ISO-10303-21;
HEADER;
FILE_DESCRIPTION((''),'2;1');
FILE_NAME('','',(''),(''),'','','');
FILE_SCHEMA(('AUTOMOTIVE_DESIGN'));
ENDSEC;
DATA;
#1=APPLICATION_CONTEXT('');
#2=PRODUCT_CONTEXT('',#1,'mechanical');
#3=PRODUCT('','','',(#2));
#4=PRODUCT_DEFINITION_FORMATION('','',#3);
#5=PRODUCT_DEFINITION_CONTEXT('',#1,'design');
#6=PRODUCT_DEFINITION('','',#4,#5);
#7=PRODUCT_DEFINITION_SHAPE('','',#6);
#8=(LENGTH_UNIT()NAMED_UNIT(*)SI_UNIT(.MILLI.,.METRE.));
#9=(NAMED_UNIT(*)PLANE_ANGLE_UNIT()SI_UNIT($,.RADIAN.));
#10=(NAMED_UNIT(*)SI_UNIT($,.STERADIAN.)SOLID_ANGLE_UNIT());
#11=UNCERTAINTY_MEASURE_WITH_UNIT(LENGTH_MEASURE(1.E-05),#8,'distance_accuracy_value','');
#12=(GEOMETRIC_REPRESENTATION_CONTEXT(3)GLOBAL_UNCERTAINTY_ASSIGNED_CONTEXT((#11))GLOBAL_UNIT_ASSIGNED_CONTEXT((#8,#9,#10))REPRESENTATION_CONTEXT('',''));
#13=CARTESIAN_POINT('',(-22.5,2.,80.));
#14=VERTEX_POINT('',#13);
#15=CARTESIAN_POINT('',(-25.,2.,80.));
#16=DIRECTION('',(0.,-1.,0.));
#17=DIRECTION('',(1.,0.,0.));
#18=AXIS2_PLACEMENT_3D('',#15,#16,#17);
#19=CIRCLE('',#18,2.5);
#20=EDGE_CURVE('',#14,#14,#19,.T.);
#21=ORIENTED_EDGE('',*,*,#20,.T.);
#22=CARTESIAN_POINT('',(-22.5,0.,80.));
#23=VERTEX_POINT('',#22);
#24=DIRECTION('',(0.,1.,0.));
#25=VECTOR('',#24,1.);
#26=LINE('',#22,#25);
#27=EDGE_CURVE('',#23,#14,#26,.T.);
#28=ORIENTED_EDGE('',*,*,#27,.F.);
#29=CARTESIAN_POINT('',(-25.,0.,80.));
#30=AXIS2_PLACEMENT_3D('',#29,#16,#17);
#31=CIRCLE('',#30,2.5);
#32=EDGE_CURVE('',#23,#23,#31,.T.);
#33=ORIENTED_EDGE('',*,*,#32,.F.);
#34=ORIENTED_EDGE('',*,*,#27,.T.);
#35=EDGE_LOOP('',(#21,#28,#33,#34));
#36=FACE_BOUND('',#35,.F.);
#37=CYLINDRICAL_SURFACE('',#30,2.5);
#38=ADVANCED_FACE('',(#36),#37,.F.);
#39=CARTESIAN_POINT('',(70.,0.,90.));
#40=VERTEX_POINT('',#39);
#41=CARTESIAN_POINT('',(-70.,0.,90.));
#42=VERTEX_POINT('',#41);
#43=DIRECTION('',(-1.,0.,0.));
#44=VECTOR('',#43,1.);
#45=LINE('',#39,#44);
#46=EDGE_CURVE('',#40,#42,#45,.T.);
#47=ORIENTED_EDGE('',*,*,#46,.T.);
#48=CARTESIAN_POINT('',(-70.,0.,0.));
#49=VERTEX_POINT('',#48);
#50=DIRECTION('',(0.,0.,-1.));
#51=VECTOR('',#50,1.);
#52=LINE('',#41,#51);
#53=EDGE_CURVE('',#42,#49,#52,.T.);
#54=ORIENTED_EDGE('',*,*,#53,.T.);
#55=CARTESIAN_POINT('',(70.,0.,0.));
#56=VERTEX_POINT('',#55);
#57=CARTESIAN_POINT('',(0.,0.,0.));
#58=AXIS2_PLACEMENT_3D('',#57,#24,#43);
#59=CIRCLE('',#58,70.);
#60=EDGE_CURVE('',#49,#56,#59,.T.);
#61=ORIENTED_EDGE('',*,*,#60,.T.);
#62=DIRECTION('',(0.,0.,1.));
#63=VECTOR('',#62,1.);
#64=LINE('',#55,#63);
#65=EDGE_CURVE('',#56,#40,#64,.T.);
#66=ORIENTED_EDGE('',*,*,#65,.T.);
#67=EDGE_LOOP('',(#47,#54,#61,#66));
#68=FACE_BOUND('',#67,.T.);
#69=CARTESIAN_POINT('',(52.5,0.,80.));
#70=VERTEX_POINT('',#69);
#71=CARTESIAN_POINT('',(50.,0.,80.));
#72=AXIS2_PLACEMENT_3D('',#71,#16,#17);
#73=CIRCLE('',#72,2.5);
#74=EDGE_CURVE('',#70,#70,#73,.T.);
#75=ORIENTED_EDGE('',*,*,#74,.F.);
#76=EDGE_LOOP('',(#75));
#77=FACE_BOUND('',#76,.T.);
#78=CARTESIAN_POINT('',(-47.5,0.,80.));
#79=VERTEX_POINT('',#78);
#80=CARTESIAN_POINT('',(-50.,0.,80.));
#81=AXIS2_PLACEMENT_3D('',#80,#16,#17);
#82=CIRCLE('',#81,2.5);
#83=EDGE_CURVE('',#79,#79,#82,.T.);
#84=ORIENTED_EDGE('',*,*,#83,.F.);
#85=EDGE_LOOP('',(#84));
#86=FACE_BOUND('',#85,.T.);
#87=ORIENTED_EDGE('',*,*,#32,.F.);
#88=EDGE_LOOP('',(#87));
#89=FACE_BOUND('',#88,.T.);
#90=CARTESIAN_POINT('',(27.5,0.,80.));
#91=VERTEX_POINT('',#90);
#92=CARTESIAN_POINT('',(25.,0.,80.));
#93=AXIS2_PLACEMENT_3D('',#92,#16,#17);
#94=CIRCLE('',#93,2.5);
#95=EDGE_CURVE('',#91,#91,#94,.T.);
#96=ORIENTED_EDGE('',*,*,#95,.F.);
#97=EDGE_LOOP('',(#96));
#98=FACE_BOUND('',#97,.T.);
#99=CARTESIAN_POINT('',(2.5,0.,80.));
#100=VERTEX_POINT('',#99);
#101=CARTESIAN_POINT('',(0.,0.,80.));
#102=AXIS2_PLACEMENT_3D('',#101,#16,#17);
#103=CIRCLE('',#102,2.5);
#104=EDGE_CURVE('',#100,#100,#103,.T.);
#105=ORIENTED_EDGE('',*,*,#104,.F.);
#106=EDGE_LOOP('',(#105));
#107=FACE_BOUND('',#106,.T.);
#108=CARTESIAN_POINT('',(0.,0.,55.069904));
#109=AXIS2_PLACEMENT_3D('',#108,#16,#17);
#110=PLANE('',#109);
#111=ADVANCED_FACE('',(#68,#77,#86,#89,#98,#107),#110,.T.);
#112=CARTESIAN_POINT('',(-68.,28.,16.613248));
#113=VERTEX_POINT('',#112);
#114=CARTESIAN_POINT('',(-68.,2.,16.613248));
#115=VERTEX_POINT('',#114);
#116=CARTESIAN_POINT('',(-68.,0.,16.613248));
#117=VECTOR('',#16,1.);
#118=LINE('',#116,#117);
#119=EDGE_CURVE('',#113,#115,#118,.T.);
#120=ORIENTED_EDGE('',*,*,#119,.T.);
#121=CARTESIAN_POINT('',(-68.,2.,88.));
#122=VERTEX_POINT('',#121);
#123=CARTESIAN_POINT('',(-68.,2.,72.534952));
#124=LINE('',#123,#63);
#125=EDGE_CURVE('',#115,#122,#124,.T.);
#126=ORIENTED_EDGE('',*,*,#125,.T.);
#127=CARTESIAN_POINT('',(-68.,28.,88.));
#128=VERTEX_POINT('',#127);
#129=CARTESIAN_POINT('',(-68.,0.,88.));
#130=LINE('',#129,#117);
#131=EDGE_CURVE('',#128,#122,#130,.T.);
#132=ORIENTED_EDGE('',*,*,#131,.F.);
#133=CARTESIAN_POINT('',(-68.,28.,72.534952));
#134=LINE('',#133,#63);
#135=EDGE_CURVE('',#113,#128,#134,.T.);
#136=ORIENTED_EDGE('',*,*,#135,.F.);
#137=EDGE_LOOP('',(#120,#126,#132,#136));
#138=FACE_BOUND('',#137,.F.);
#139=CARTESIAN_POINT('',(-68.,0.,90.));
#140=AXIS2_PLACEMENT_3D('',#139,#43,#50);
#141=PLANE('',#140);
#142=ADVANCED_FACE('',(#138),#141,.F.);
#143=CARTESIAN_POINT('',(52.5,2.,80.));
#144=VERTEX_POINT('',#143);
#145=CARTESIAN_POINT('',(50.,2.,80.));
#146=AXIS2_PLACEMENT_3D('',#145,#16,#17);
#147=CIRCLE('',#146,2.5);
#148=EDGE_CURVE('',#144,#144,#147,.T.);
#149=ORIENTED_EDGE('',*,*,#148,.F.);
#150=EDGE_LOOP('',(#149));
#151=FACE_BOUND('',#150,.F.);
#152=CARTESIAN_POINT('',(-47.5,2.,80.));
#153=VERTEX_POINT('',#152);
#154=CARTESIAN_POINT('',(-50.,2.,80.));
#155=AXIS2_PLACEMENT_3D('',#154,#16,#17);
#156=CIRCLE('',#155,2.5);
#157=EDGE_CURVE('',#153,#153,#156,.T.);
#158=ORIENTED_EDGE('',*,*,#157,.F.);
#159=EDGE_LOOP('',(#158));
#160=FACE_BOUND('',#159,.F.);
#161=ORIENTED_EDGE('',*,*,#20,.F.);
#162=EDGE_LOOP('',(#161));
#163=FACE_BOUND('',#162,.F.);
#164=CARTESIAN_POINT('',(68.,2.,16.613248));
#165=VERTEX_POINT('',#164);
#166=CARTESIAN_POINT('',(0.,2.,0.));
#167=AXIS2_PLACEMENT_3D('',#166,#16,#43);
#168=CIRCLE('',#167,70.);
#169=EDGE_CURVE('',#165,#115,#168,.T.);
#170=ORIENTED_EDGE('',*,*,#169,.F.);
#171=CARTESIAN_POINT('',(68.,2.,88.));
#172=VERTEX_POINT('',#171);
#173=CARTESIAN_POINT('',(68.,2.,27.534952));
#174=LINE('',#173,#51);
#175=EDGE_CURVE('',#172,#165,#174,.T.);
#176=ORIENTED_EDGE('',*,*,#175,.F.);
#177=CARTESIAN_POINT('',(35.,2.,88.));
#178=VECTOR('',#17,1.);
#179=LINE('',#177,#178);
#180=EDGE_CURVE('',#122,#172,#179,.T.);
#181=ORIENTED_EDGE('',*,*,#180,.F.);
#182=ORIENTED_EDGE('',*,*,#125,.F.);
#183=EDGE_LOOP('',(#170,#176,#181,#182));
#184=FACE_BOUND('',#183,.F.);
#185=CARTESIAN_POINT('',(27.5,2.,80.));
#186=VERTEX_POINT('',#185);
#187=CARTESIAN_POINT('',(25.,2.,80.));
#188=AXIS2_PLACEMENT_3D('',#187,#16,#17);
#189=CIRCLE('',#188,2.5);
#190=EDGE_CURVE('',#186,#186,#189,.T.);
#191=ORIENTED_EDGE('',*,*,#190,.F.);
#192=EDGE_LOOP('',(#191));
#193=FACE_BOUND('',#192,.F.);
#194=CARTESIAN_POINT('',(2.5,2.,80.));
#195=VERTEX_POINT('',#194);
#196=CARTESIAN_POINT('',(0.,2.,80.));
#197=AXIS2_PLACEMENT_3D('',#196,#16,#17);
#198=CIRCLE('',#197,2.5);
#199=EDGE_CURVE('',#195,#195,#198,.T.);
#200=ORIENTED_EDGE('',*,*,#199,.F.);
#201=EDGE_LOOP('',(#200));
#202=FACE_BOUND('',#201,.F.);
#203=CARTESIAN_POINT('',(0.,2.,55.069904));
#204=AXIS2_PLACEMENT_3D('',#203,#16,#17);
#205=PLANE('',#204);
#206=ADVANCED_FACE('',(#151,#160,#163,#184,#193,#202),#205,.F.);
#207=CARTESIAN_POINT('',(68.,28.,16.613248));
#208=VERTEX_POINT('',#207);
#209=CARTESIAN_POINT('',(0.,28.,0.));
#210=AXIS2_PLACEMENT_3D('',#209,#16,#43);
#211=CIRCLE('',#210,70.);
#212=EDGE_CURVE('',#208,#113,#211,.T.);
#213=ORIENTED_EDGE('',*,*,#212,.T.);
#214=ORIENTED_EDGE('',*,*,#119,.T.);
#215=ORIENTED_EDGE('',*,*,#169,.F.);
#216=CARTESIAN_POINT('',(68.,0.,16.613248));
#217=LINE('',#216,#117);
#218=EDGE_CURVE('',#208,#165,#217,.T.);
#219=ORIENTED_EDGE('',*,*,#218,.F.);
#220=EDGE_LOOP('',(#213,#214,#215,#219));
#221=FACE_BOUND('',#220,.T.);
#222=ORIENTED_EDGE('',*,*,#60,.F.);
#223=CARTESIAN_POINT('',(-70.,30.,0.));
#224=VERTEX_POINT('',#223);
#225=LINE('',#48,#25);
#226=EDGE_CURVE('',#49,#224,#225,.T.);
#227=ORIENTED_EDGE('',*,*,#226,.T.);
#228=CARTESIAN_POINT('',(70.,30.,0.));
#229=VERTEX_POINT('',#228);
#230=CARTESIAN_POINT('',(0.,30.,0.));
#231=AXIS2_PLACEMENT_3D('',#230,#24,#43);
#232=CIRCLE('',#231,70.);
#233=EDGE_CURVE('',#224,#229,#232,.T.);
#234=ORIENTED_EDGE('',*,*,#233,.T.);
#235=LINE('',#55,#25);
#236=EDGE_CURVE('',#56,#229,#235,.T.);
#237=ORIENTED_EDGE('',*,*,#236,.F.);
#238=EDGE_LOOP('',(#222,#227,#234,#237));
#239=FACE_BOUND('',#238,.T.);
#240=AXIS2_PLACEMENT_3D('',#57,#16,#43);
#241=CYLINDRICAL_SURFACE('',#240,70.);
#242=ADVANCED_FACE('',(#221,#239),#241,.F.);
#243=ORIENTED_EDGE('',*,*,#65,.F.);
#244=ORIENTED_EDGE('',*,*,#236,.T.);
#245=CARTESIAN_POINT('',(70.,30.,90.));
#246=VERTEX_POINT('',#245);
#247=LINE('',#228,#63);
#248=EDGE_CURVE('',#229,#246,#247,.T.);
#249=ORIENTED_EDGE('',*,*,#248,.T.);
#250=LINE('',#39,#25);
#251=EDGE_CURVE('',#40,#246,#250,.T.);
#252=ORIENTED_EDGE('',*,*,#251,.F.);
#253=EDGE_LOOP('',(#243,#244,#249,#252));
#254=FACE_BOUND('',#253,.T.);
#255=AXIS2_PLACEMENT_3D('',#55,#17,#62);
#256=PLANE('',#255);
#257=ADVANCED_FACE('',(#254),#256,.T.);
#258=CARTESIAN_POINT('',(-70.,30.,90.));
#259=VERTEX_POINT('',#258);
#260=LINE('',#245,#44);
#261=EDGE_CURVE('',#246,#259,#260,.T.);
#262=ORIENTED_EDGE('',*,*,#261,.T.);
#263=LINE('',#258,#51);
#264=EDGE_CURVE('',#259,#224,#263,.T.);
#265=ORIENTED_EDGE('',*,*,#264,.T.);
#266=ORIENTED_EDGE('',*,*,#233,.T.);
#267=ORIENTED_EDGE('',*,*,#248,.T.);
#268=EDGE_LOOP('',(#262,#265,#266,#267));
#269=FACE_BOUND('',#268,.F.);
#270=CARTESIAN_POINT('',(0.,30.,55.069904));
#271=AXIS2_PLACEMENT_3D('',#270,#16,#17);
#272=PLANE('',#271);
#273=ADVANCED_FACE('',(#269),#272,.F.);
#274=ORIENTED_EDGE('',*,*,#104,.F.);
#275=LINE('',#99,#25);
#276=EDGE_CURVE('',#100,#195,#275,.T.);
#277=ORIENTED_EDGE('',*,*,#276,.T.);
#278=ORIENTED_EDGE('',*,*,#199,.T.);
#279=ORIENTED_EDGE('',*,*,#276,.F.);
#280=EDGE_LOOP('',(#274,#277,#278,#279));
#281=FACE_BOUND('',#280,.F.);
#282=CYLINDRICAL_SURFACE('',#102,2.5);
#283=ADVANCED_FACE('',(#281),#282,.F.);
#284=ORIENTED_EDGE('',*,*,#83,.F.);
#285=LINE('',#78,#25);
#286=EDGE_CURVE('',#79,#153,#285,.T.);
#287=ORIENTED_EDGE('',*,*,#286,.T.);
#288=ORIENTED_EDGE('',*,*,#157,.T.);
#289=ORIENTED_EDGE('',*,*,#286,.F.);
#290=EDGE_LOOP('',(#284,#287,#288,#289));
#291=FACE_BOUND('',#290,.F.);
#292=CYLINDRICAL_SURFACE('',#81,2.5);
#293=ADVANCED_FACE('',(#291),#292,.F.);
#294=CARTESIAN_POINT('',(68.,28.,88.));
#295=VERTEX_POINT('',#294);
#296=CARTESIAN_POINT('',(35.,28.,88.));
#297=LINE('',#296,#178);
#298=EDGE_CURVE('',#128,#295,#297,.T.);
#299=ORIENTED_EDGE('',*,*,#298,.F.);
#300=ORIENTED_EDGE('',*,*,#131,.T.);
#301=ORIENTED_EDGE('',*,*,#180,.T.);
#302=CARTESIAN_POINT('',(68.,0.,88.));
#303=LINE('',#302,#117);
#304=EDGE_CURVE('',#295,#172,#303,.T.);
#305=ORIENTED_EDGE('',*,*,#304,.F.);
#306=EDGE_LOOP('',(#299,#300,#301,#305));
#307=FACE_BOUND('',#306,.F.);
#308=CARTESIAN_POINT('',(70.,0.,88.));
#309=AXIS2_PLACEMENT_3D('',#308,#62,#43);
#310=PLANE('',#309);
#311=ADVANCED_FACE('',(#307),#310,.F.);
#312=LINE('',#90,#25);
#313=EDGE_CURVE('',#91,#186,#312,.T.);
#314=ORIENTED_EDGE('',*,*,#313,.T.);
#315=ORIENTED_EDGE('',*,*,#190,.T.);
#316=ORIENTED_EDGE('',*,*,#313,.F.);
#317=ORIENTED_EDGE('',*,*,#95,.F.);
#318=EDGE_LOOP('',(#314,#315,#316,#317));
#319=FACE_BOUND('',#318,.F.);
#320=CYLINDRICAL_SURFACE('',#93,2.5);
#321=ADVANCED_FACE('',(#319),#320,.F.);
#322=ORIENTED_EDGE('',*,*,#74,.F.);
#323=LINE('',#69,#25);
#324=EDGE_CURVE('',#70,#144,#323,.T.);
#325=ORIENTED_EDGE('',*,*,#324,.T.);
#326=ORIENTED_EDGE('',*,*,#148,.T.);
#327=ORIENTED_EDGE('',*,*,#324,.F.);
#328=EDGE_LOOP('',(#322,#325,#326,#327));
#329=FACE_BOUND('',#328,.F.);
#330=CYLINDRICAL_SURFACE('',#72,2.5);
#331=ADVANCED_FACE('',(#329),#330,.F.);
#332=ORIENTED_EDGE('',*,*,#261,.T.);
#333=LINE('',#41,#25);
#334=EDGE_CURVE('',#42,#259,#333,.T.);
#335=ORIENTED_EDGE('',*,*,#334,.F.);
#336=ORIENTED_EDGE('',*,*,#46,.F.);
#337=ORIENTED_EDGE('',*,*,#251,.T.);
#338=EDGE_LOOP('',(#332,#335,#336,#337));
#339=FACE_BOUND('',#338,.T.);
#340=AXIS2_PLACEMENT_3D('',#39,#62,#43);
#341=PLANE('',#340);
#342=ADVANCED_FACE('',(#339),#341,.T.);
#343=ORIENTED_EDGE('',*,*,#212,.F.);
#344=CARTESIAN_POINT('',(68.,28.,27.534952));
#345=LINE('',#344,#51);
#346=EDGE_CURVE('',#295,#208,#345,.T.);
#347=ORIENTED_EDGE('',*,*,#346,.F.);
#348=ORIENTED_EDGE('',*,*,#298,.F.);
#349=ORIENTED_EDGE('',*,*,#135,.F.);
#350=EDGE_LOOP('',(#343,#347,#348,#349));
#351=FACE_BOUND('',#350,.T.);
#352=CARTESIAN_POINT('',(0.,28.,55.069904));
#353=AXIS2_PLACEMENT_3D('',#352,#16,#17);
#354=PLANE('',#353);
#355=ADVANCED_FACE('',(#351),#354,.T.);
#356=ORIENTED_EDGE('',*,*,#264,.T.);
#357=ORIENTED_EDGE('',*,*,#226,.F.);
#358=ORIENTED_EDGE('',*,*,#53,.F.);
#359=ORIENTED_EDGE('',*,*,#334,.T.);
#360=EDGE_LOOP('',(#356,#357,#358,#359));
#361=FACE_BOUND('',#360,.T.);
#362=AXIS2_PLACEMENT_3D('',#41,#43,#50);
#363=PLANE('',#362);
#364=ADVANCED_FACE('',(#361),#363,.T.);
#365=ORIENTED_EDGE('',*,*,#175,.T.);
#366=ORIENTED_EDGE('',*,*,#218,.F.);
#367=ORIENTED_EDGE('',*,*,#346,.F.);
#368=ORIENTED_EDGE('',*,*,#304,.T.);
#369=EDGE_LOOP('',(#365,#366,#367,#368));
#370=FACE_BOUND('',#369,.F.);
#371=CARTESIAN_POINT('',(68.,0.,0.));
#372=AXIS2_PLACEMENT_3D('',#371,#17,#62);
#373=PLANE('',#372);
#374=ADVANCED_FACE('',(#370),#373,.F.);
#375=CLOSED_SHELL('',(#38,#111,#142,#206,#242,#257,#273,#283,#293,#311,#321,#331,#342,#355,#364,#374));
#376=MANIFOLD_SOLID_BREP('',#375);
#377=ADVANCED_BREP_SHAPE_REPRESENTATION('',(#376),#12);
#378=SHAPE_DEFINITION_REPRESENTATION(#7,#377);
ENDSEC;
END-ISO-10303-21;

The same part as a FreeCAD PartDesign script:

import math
import FreeCAD as App
import Part
import Sketcher

V = App.Vector


def faces_at(feature, points):
    """Names of the faces that lie closest to the given points."""
    faces = feature.Shape.Faces
    near = lambda p: min(range(len(faces)), key=lambda i: faces[i].distToShape(Part.Vertex(*p))[0])
    return sorted({f"Face{near(p) + 1}" for p in points})

doc = App.newDocument("Part")
params = doc.addObject("Spreadsheet::Sheet", "Params")
for row, (alias, value) in enumerate([
    ("sketch1_radius", "70 mm"),
    ("sketch1_height", "90 mm"),
    ("pad1_length", "30 mm"),
    ("thickness_wall", "2 mm"),
    ("sketch2_diameter", "5 mm"),
    ("pocket1_length", "5 mm"),
], start=1):
    params.set(f"A{row}", alias)
    params.set(f"B{row}", "=" + value)
    params.setAlias(f"B{row}", alias)

body = doc.addObject("PartDesign::Body", "Body")

# Sketch on XZ plane
sketch1 = doc.addObject("Sketcher::SketchObject", "Sketch")
body.addObject(sketch1)
sketch1.AttachmentSupport = (doc.XZ_Plane, [""])
sketch1.MapMode = "FlatFace"
sketch1.addGeometry([
    Part.ArcOfCircle(Part.Circle(V(0, 0, 0), V(0, 0, 1), 70), math.radians(0), math.radians(180)),
    Part.LineSegment(V(70, 0, 0), V(70, 90, 0)),
    Part.LineSegment(V(70, 90, 0), V(-70, 90, 0)),
    Part.LineSegment(V(-70, 90, 0), V(-70, 0, 0)),
], False)
sketch1.addConstraint([
    Sketcher.Constraint("Tangent", 0, 1, 1, 1),
    Sketcher.Constraint("Coincident", 1, 2, 2, 1),
    Sketcher.Constraint("Coincident", 2, 2, 3, 1),
    Sketcher.Constraint("Tangent", 3, 2, 0, 2),
    Sketcher.Constraint("Vertical", 1),
    Sketcher.Constraint("Horizontal", 2),
    Sketcher.Constraint("Vertical", 3),
    Sketcher.Constraint("Coincident", 0, 3, -1, 1),
    Sketcher.Constraint("Radius", 0, 70.0),
    Sketcher.Constraint("DistanceY", 1, 1, 1, 2, 90.0),
])
sketch1.setExpression("Constraints[8]", "Params.sketch1_radius")
sketch1.setExpression("Constraints[9]", "Params.sketch1_height")
pad1 = doc.addObject("PartDesign::Pad", "Pad")
body.addObject(pad1)
pad1.Profile = sketch1
pad1.setExpression("Length", "Params.pad1_length")
pad1.Reversed = True
doc.recompute()

thickness = doc.addObject("PartDesign::Thickness", "Thickness")
body.addObject(thickness)
thickness.Base = (pad1, faces_at(pad1, [(0, 15, 70)]))
thickness.setExpression("Value", "Params.thickness_wall")
thickness.Reversed = True
thickness.Join = "Intersection"

# Sketch on XZ plane
sketch2 = doc.addObject("Sketcher::SketchObject", "Sketch001")
body.addObject(sketch2)
sketch2.AttachmentSupport = (doc.XZ_Plane, [""])
sketch2.MapMode = "FlatFace"
sketch2.addGeometry([
    Part.Circle(V(50, 80, 0), V(0, 0, 1), 2.5),  # 0
    Part.Circle(V(25, 80, 0), V(0, 0, 1), 2.5),  # 1
    Part.Circle(V(0, 80, 0), V(0, 0, 1), 2.5),  # 2
    Part.Circle(V(-25, 80, 0), V(0, 0, 1), 2.5),  # 3
    Part.Circle(V(-50, 80, 0), V(0, 0, 1), 2.5),  # 4
], False)
sketch2.addConstraint([
    Sketcher.Constraint("Equal", 0, 1),
    Sketcher.Constraint("Equal", 1, 2),
    Sketcher.Constraint("Equal", 2, 3),
    Sketcher.Constraint("Equal", 3, 4),
    Sketcher.Constraint("Symmetric", 1, 3, 3, 3, -2),
    Sketcher.Constraint("Symmetric", 0, 3, 4, 3, -2),
    Sketcher.Constraint("PointOnObject", 2, 3, -2),
    Sketcher.Constraint("Horizontal", 0, 3, 1, 3),
    Sketcher.Constraint("Horizontal", 1, 3, 2, 3),
    Sketcher.Constraint("Diameter", 0, 5.0),
    Sketcher.Constraint("DistanceX", -1, 1, 0, 3, 50.0),
    Sketcher.Constraint("DistanceY", -1, 1, 0, 3, 80.0),
    Sketcher.Constraint("DistanceX", -1, 1, 1, 3, 25.0),
])
sketch2.setExpression("Constraints[9]", "Params.sketch2_diameter")
pocket1 = doc.addObject("PartDesign::Pocket", "Pocket")
body.addObject(pocket1)
pocket1.Profile = sketch2
pocket1.setExpression("Length", "Params.pocket1_length")

doc.recompute()
